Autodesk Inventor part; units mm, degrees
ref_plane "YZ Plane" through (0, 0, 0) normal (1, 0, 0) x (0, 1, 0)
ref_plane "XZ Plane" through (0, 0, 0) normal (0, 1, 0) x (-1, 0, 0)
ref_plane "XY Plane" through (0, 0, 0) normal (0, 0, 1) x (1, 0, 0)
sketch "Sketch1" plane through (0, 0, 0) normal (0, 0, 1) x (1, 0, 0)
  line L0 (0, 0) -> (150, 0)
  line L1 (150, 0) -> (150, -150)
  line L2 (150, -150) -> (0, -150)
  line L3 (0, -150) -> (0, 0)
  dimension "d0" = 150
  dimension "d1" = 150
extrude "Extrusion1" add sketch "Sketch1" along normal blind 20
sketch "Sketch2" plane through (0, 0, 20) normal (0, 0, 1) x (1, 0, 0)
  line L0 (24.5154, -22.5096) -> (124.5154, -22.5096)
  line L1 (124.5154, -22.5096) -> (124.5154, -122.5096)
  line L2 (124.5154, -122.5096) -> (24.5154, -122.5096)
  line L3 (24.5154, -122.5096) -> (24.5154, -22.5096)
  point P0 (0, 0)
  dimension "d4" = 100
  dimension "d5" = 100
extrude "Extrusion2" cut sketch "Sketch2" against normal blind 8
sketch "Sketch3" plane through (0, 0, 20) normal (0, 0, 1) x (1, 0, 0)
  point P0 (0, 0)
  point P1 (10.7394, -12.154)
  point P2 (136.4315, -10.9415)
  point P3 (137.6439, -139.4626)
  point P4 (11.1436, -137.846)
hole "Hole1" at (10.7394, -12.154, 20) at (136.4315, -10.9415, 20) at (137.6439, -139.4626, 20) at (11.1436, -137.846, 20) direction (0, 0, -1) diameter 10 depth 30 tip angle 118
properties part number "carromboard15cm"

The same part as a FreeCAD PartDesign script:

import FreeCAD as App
import Part
import Sketcher

V = App.Vector
Q = App.Units.Quantity

doc = App.newDocument("Part")
body = doc.addObject("PartDesign::Body", "Body")

sketch1 = body.newObject("Sketcher::SketchObject", "Sketch")
sketch1.AttachmentSupport = (doc.getObject("XY_Plane"), [""])
sketch1.MapMode = "FlatFace"
sketch1.addGeometry(Part.LineSegment(V(150, 0, 0), V(0, 0, 0)), False)
sketch1.addGeometry(Part.LineSegment(V(0, 0, 0), V(0, -150, 0)), False)
sketch1.addGeometry(Part.LineSegment(V(0, -150, 0), V(150, -150, 0)), False)
sketch1.addGeometry(Part.LineSegment(V(150, -150, 0), V(150, 0, 0)), False)
sketch1.addConstraint(Sketcher.Constraint("Coincident", 0, 2, 1, 1))
sketch1.addConstraint(Sketcher.Constraint("Coincident", 1, 2, 2, 1))
sketch1.addConstraint(Sketcher.Constraint("Coincident", 2, 2, 3, 1))
sketch1.addConstraint(Sketcher.Constraint("Coincident", 3, 2, 0, 1))
sketch1.addConstraint(Sketcher.Constraint("Horizontal", 0))
sketch1.addConstraint(Sketcher.Constraint("Vertical", 1))
sketch1.addConstraint(Sketcher.Constraint("Horizontal", 2))
sketch1.addConstraint(Sketcher.Constraint("Vertical", 3))
sketch1.addConstraint(Sketcher.Constraint("Coincident", 0, 2, -1, 1))
sketch1.addConstraint(Sketcher.Constraint("Equal", 2, 1))
sketch1.addConstraint(Sketcher.Constraint("DistanceX", 0, 2, 0, 1, Q("150 mm")))
pad1 = body.newObject("PartDesign::Pad", "Pad")
pad1.Profile = sketch1
pad1.Length = 20

sketch2 = body.newObject("Sketcher::SketchObject", "Sketch001")
sketch2.AttachmentSupport = (doc.getObject("XY_Plane"), [""])
sketch2.MapMode = "FlatFace"
sketch2.AttachmentOffset = App.Placement(V(0, 0, 20), App.Rotation())
sketch2.addGeometry(Part.LineSegment(V(124.5154, -22.5096, 0), V(24.5154, -22.5096, 0)), False)
sketch2.addGeometry(Part.LineSegment(V(24.5154, -22.5096, 0), V(24.5154, -122.5096, 0)), False)
sketch2.addGeometry(Part.LineSegment(V(24.5154, -122.5096, 0), V(124.5154, -122.5096, 0)), False)
sketch2.addGeometry(Part.LineSegment(V(124.5154, -122.5096, 0), V(124.5154, -22.5096, 0)), False)
sketch2.addConstraint(Sketcher.Constraint("Coincident", 0, 2, 1, 1))
sketch2.addConstraint(Sketcher.Constraint("Coincident", 1, 2, 2, 1))
sketch2.addConstraint(Sketcher.Constraint("Coincident", 2, 2, 3, 1))
sketch2.addConstraint(Sketcher.Constraint("Coincident", 3, 2, 0, 1))
sketch2.addConstraint(Sketcher.Constraint("Horizontal", 0))
sketch2.addConstraint(Sketcher.Constraint("Vertical", 1))
sketch2.addConstraint(Sketcher.Constraint("Horizontal", 2))
sketch2.addConstraint(Sketcher.Constraint("Vertical", 3))
sketch2.addConstraint(Sketcher.Constraint("Equal", 2, 1))
sketch2.addConstraint(Sketcher.Constraint("DistanceX", 0, 2, 0, 1, Q("100 mm")))
sketch2.addConstraint(Sketcher.Constraint("DistanceX", -1, 1, 0, 2, Q("24.5154 mm")))
sketch2.addConstraint(Sketcher.Constraint("DistanceY", 0, 2, -1, 1, Q("22.5096 mm")))
pocket1 = body.newObject("PartDesign::Pocket", "Pocket")
pocket1.Profile = sketch2
pocket1.Length = 8

sketch3 = body.newObject("Sketcher::SketchObject", "Sketch002")
sketch3.AttachmentSupport = (doc.getObject("XY_Plane"), [""])
sketch3.MapMode = "FlatFace"
sketch3.AttachmentOffset = App.Placement(V(0, 0, 20), App.Rotation())
sketch3.addGeometry(Part.Circle(V(10.7394, -12.154, 0), V(0, 0, 1), 5), False)
sketch3.addGeometry(Part.Circle(V(136.4315, -10.9415, 0), V(0, 0, 1), 5), False)
sketch3.addGeometry(Part.Circle(V(137.6439, -139.4626, 0), V(0, 0, 1), 5), False)
sketch3.addGeometry(Part.Circle(V(11.1436, -137.846, 0), V(0, 0, 1), 5), False)
sketch3.addConstraint(Sketcher.Constraint("Equal", 0, 1))
sketch3.addConstraint(Sketcher.Constraint("Equal", 1, 2))
sketch3.addConstraint(Sketcher.Constraint("Equal", 2, 3))
sketch3.addConstraint(Sketcher.Constraint("Diameter", 0, Q("10 mm")))
sketch3.addConstraint(Sketcher.Constraint("DistanceY", 0, 3, -1, 1, Q("12.154 mm")))
sketch3.addConstraint(Sketcher.Constraint("DistanceX", -1, 1, 2, 3, Q("137.644 mm")))
sketch3.addConstraint(Sketcher.Constraint("DistanceY", 3, 3, -1, 1, Q("137.846 mm")))
sketch3.addConstraint(Sketcher.Constraint("DistanceX", 0, 3, 1, 3, Q("125.692 mm")))
sketch3.addConstraint(Sketcher.Constraint("DistanceY", 2, 3, 1, 3, Q("128.521 mm")))
sketch3.addConstraint(Sketcher.Constraint("DistanceX", 3, 3, 1, 3, Q("125.288 mm")))
sketch3.addConstraint(Sketcher.Constraint("DistanceX", -1, 1, 0, 3, Q("10.7394 mm")))
sketch3.addConstraint(Sketcher.Constraint("DistanceY", 1, 3, -1, 1, Q("10.9415 mm")))
doc.recompute()
hole = body.newObject("PartDesign::Hole", "Hole")
hole.Profile = sketch3
hole.ThreadType = "None"
hole.Diameter = 10
hole.DepthType = "Dimension"
hole.Depth = 30
hole.DrillPoint = "Angled"
hole.DrillPointAngle = 118

doc.recompute()
